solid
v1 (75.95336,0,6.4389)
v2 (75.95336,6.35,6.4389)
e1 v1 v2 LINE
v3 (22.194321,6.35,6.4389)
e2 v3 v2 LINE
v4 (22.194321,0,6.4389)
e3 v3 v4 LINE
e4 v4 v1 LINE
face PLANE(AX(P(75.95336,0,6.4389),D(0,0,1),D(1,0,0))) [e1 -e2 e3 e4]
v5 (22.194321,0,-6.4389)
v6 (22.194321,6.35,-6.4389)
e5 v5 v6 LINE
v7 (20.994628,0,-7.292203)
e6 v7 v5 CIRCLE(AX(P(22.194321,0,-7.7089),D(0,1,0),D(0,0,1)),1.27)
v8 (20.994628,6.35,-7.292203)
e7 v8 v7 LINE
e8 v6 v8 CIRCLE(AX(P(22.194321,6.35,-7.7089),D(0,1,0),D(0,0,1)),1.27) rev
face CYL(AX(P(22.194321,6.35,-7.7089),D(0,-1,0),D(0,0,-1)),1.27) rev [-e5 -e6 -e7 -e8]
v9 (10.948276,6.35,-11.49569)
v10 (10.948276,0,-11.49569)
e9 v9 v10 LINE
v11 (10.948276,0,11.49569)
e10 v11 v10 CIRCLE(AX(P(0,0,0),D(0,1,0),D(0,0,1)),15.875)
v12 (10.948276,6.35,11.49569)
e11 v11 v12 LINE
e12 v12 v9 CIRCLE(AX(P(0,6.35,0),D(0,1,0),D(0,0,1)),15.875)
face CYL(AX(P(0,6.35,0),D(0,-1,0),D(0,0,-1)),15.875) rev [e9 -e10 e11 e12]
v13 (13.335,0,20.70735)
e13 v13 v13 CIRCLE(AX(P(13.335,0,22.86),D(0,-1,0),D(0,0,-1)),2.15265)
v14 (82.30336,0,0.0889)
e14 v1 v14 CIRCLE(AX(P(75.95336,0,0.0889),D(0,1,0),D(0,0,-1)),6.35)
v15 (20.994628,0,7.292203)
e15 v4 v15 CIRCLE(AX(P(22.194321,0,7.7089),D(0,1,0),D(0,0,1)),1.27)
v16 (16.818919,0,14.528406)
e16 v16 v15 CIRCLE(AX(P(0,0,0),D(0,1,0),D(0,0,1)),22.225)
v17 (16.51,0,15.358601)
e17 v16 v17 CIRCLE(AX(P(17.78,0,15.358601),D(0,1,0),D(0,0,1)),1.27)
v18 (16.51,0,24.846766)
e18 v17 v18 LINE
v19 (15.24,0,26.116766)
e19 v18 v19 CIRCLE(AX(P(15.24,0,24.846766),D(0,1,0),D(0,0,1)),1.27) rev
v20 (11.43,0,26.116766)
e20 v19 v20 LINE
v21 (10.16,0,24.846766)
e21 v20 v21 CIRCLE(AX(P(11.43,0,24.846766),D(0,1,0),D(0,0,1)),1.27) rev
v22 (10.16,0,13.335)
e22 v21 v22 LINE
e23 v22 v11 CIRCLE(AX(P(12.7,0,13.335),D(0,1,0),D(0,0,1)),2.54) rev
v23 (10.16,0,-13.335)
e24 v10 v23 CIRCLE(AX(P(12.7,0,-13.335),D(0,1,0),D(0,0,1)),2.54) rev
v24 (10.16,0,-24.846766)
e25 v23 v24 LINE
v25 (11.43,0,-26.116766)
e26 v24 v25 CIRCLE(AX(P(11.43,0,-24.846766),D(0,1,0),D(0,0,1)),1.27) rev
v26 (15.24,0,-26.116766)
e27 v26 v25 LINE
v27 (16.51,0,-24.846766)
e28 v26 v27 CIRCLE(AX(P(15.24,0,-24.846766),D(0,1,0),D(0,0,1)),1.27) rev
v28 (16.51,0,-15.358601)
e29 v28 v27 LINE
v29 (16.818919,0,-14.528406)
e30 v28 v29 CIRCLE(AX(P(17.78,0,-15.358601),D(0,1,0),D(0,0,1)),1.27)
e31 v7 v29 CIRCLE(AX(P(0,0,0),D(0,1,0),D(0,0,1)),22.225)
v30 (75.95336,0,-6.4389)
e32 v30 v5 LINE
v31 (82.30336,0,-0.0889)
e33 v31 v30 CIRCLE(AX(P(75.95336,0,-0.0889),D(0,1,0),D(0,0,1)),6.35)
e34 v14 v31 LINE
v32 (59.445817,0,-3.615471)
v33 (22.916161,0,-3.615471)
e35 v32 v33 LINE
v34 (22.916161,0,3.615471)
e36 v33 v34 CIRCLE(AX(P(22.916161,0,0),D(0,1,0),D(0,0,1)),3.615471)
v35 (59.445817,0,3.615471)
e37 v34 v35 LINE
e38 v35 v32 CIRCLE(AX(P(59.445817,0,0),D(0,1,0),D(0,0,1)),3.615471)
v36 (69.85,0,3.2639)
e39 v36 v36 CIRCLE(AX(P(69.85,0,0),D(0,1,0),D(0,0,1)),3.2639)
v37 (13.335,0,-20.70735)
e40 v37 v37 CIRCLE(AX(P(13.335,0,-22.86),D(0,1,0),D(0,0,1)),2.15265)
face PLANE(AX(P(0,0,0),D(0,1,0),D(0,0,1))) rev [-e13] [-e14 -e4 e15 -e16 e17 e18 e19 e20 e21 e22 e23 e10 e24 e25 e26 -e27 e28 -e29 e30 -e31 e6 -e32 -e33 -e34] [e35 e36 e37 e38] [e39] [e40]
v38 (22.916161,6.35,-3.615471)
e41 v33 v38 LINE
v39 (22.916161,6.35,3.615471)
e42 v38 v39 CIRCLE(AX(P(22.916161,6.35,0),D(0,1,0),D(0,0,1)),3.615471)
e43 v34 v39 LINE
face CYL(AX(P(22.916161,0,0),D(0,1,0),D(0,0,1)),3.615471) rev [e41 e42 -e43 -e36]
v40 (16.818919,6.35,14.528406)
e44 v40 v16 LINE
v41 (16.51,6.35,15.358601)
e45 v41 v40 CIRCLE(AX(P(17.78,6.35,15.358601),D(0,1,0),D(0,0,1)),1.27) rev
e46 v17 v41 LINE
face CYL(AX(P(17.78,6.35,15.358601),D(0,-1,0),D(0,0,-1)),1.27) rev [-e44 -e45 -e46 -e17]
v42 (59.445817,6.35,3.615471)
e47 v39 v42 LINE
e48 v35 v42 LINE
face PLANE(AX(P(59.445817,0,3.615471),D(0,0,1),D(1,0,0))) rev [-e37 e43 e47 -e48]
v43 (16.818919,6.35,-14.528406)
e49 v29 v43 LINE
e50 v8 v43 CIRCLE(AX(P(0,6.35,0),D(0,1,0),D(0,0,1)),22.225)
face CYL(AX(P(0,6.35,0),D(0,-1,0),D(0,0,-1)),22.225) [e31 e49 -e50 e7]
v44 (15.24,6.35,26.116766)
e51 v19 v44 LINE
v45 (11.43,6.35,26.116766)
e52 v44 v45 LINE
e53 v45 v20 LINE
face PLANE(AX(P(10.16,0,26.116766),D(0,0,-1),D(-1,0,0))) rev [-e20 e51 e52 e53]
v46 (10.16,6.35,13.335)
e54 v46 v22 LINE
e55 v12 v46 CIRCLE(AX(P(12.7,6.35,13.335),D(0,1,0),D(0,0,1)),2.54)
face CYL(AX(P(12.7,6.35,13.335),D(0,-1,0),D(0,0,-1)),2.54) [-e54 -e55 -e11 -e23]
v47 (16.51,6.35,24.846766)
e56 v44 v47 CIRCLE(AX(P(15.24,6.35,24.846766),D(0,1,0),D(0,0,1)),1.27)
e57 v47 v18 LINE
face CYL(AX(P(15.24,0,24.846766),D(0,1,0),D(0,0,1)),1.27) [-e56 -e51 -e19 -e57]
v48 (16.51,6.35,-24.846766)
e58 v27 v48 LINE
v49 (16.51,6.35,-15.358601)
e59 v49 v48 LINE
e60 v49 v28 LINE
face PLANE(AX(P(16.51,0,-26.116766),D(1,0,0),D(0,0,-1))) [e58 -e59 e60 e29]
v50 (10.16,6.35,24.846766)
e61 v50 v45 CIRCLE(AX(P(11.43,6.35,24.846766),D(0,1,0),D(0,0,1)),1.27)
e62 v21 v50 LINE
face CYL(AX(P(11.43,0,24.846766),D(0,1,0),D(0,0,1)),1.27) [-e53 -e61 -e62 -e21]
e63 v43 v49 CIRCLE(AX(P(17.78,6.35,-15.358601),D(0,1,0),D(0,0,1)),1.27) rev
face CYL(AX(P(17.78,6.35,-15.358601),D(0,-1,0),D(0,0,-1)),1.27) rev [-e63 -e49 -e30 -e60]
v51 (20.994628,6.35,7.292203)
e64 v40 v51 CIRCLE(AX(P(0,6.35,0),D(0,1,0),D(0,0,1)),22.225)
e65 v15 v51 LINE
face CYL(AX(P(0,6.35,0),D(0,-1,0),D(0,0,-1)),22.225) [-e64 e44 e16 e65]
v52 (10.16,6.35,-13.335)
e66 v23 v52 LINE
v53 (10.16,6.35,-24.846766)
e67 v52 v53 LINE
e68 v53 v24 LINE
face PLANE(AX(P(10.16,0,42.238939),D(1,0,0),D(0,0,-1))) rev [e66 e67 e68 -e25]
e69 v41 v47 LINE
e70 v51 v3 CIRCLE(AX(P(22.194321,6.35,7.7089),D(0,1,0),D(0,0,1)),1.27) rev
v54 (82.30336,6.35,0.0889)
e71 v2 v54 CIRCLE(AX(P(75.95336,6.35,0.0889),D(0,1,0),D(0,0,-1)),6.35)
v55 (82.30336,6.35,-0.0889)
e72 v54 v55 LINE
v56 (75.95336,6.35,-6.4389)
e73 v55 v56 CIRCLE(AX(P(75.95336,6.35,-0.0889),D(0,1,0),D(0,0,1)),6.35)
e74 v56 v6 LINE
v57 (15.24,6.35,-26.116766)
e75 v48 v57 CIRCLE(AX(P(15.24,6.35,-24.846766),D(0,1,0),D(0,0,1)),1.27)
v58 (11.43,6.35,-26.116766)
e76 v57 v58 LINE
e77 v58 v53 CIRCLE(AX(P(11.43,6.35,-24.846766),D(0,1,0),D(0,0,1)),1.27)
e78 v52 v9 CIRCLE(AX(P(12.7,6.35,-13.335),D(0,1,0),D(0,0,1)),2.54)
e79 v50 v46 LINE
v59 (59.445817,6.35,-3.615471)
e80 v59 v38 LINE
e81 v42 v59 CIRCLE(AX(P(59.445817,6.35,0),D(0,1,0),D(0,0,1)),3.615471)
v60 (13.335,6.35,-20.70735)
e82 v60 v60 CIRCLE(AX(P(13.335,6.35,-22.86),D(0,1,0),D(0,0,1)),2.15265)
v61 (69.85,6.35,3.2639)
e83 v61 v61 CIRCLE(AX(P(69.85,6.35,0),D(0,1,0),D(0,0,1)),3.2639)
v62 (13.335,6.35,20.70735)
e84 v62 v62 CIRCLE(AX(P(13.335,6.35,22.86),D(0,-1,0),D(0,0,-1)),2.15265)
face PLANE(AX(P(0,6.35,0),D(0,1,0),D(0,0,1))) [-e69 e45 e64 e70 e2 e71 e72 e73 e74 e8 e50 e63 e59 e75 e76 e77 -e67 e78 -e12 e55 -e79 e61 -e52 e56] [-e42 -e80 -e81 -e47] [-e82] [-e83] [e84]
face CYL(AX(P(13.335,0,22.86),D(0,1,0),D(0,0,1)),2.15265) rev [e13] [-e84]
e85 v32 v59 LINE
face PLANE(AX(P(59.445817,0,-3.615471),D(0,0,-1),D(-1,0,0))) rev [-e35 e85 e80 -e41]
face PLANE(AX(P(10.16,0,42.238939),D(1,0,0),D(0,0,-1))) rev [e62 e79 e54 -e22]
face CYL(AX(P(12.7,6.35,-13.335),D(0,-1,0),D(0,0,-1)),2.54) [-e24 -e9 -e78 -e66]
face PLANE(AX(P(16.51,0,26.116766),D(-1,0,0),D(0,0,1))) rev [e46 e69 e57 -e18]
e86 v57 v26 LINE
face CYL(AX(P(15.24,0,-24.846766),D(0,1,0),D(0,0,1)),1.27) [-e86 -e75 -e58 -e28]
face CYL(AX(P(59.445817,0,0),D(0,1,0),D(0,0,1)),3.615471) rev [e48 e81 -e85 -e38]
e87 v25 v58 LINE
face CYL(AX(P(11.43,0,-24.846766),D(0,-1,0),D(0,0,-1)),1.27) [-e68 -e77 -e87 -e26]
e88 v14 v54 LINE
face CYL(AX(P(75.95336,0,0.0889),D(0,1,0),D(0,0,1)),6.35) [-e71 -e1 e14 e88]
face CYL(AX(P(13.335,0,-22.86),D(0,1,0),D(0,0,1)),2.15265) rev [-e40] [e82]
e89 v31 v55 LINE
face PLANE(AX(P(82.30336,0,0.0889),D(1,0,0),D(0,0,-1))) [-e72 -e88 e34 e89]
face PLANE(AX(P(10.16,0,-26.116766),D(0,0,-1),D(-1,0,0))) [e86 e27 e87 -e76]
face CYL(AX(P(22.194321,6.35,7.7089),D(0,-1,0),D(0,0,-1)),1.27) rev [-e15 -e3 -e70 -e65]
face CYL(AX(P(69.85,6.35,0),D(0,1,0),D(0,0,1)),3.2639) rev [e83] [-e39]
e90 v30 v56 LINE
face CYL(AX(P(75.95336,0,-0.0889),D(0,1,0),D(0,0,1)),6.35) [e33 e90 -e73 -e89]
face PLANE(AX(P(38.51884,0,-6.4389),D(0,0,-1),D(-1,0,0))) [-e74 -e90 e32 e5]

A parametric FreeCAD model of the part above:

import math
import FreeCAD as App
import Part
import Sketcher
from FreeCAD import Vector
Q = App.Units.Quantity


def edges_at(feature, points):
    """Names of the edges that pass closest to the given points."""
    edges = feature.Shape.Edges
    near = lambda p: min(range(len(edges)), key=lambda i: edges[i].distToShape(Part.Vertex(*p))[0])
    return sorted({f"Edge{near(p) + 1}" for p in points})

doc = App.newDocument("Part")
body = doc.addObject("PartDesign::Body", "Body")

sketch1 = body.newObject("Sketcher::SketchObject", "Sketch")
sketch1.AttachmentSupport = (doc.getObject("XZ_Plane"), [""])
sketch1.MapMode = "FlatFace"
sketch1.addGeometry([
    Part.Circle(Vector(0, 0, 0), Vector(0, 0, 1), 22.225),
    Part.Circle(Vector(0, 0, 0), Vector(0, 0, 1), 15.875),
], False)
sketch1.addConstraint([
    Sketcher.Constraint("Coincident", 0, 3, -1, 1),
    Sketcher.Constraint("Coincident", 1, 3, -1, 1),
    Sketcher.Constraint("Diameter", 0, Q("1.75 in")),
    Sketcher.Constraint("Diameter", 1, Q("1.25 in")),
])
pad1 = body.newObject("PartDesign::Pad", "Pad")
pad1.Profile = sketch1
pad1.Length = Q("0.25 in")
pad1.Reversed = True

sketch2 = body.newObject("Sketcher::SketchObject", "Sketch001")
sketch2.AttachmentSupport = (doc.getObject("XZ_Plane"), [""])
sketch2.MapMode = "FlatFace"
sketch2.AttachmentOffset = App.Placement(Vector(0, 0, -0.25 * 25.4), App.Rotation())
sketch2.addGeometry([
    Part.LineSegment(Vector(17.59077, 6.4389, 0), Vector(75.95336, 6.4389, 0)),
    Part.ArcOfCircle(Part.Circle(Vector(75.95336, 0.0889, 0), Vector(0, 0, 1), 6.35), math.radians(0), math.radians(90)),
    Part.LineSegment(Vector(82.30336, 0.0889, 0), Vector(82.30336, -0.0889, 0)),
    Part.ArcOfCircle(Part.Circle(Vector(75.95336, -0.0889, 0), Vector(0, 0, 1), 6.35), math.radians(-90), math.radians(0)),
    Part.LineSegment(Vector(75.95336, -6.4389, 0), Vector(17.59077, -6.4389, 0)),
    Part.LineSegment(Vector(17.59077, -6.4389, 0), Vector(17.59077, 6.4389, 0)),
], False)
sketch2.addConstraint([
    Sketcher.Constraint("Tangent", 0, 2, 1, 2),
    Sketcher.Constraint("Tangent", 1, 1, 2, 1),
    Sketcher.Constraint("Tangent", 2, 2, 3, 2),
    Sketcher.Constraint("Tangent", 3, 1, 4, 1),
    Sketcher.Constraint("Coincident", 4, 2, 5, 1),
    Sketcher.Constraint("Coincident", 5, 2, 0, 1),
    Sketcher.Constraint("Horizontal", 0),
    Sketcher.Constraint("Vertical", 2),
    Sketcher.Constraint("Horizontal", 4),
    Sketcher.Constraint("Vertical", 5),
    Sketcher.Constraint("Equal", 1, 3),
    Sketcher.Constraint("Radius", 1, Q("0.25 in")),
    Sketcher.Constraint("DistanceY", 2, 2, 2, 1, Q("0.007 in")),
    Sketcher.Constraint("DistanceY", -1, 1, 1, 3, Q("0.0035 in")),
    Sketcher.Constraint("DistanceX", 0, 1, 0, 2, Q("58.36259 mm")),
    Sketcher.Constraint("DistanceX", -1, 1, 1, 3, Q("75.95336 mm")),
])
pad2 = body.newObject("PartDesign::Pad", "Pad001")
pad2.Profile = sketch2
pad2.Length = Q("0.25 in")

sketch3 = body.newObject("Sketcher::SketchObject", "Sketch002")
sketch3.AttachmentSupport = (doc.getObject("XZ_Plane"), [""])
sketch3.MapMode = "FlatFace"
sketch3.AttachmentOffset = App.Placement(Vector(0, 0, -0.25 * 25.4), App.Rotation())
sketch3.addGeometry(Part.Circle(Vector(69.85, 0, 0), Vector(0, 0, 1), 3.2639), False)
sketch3.addConstraint([
    Sketcher.Constraint("PointOnObject", 0, 3, -1),
    Sketcher.Constraint("Diameter", 0, Q("0.257 in")),
    Sketcher.Constraint("DistanceX", -1, 1, 0, 3, Q("2.75 in")),
])
doc.recompute()
hole = body.newObject("PartDesign::Hole", "Hole")
hole.Profile = sketch3
hole.ThreadType = "None"
hole.Diameter = Q("0.257 in")
hole.DepthType = "ThroughAll"
hole.Reversed = True

sketch4 = body.newObject("Sketcher::SketchObject", "Sketch003")
sketch4.AttachmentSupport = (doc.getObject("XZ_Plane"), [""])
sketch4.MapMode = "FlatFace"
sketch4.AttachmentOffset = App.Placement(Vector(0, 0, -0.25 * 25.4), App.Rotation())
sketch4.addGeometry([
    Part.LineSegment(Vector(-55.39241, -39.932163, 0), Vector(-55.39241, 42.238939, 0)),
    Part.LineSegment(Vector(-55.39241, 42.238939, 0), Vector(10.16, 42.238939, 0)),
    Part.LineSegment(Vector(10.16, 42.238939, 0), Vector(10.16, -39.932163, 0)),
    Part.LineSegment(Vector(10.16, -39.932163, 0), Vector(-55.39241, -39.932163, 0)),
], False)
sketch4.addConstraint([
    Sketcher.Constraint("Coincident", 0, 2, 1, 1),
    Sketcher.Constraint("Coincident", 1, 2, 2, 1),
    Sketcher.Constraint("Coincident", 2, 2, 3, 1),
    Sketcher.Constraint("Coincident", 3, 2, 0, 1),
    Sketcher.Constraint("Vertical", 0),
    Sketcher.Constraint("Horizontal", 1),
    Sketcher.Constraint("Vertical", 2),
    Sketcher.Constraint("Horizontal", 3),
    Sketcher.Constraint("DistanceX", -1, 1, 1, 2, Q("0.4 in")),
    Sketcher.Constraint("DistanceY", 0, 1, 0, 2, Q("82.171102 mm")),
    Sketcher.Constraint("DistanceX", 1, 1, 1, 2, Q("65.55241 mm")),
    Sketcher.Constraint("DistanceY", -1, 1, 0, 2, Q("42.238939 mm")),
])
pocket1 = body.newObject("PartDesign::Pocket", "Pocket")
pocket1.Profile = sketch4
pocket1.Type = "ThroughAll"
pocket1.Reversed = True
doc.recompute()

fillet = body.newObject("PartDesign::Fillet", "Fillet")
fillet.Base = (pocket1, edges_at(pocket1, [(10.16, 3.175, -12.198), (10.16, 3.175, 12.198)]))
fillet.Radius = Q("0.1 in")

sketch5 = body.newObject("Sketcher::SketchObject", "Sketch004")
sketch5.AttachmentSupport = (doc.getObject("XZ_Plane"), [""])
sketch5.MapMode = "FlatFace"
sketch5.AttachmentOffset = App.Placement(Vector(0, 0, -0.25 * 25.4), App.Rotation())
sketch5.addGeometry([
    Part.LineSegment(Vector(10.16, -26.116766, 0), Vector(10.16, -19.766766, 0)),
    Part.LineSegment(Vector(10.16, -19.766766, 0), Vector(16.51, -14.878526, 0)),
    Part.LineSegment(Vector(16.51, -14.878526, 0), Vector(16.51, -26.116766, 0)),
    Part.LineSegment(Vector(16.51, -26.116766, 0), Vector(10.16, -26.116766, 0)),
    Part.Circle(Vector(13.335, -22.86, 0), Vector(0, 0, 1), 2.15265),
], False)
sketch5.addConstraint([
    Sketcher.Constraint("Coincident", 0, 2, 1, 1),
    Sketcher.Constraint("Coincident", 1, 2, 2, 1),
    Sketcher.Constraint("Coincident", 2, 2, 3, 1),
    Sketcher.Constraint("Coincident", 3, 2, 0, 1),
    Sketcher.Constraint("Vertical", 0),
    Sketcher.Constraint("Vertical", 2),
    Sketcher.Constraint("Horizontal", 3),
    Sketcher.Constraint("Equal", 3, 0),
    Sketcher.Constraint("Diameter", 4, Q("0.1695 in")),
    Sketcher.Constraint("DistanceX", 3, 2, 3, 1, Q("0.25 in")),
    Sketcher.Constraint("DistanceY", 4, 3, -1, 1, Q("0.9 in")),
    Sketcher.Constraint("DistanceX", -1, 1, 0, 2, Q("0.4 in")),
    Sketcher.Constraint("DistanceX", -1, 1, 4, 3, Q("0.525 in")),
    Sketcher.Constraint("DistanceY", 2, 2, 2, 1, Q("11.23824 mm")),
    Sketcher.Constraint("DistanceY", 0, 2, -1, 1, Q("19.766766 mm")),
])
pad3 = body.newObject("PartDesign::Pad", "Pad002")
pad3.Profile = sketch5
pad3.Length = Q("0.25 in")
doc.recompute()

mirrored = body.newObject("PartDesign::Mirrored", "Mirrored")
mirrored.Originals = [pad3]
mirrored.MirrorPlane = (doc.getObject("XY_Plane"), [""])
body.Tip = mirrored
doc.recompute()

fillet2 = body.newObject("PartDesign::Fillet", "Fillet001")
fillet2.Base = (mirrored, edges_at(mirrored, [
    (21.272, 3.175, 6.439),
    (21.272, 3.175, -6.439),
    (16.51, 3.175, 14.879),
    (16.51, 3.175, 26.117),
    (10.16, 3.175, 26.117),
    (16.51, 3.175, -14.879),
    (10.16, 3.175, -26.117),
    (16.51, 3.175, -26.117),
]))
fillet2.Radius = Q("0.05 in")

sketch6 = body.newObject("Sketcher::SketchObject", "Sketch005")
sketch6.AttachmentSupport = (doc.getObject("XZ_Plane"), [""])
sketch6.MapMode = "FlatFace"
sketch6.AttachmentOffset = App.Placement(Vector(0, 0, -0.25 * 25.4), App.Rotation())
sketch6.addGeometry([
    Part.LineSegment(Vector(22.916161, 3.615471, 0), Vector(59.445817, 3.615471, 0)),
    Part.ArcOfCircle(Part.Circle(Vector(59.445817, 0, 0), Vector(0, 0, 1), 3.615471), math.radians(-90), math.radians(90)),
    Part.LineSegment(Vector(59.445817, -3.615471, 0), Vector(22.916161, -3.615471, 0)),
    Part.ArcOfCircle(Part.Circle(Vector(22.916161, 0, 0), Vector(0, 0, 1), 3.615471), math.radians(90), math.radians(270)),
], False)
sketch6.addConstraint([
    Sketcher.Constraint("Tangent", 0, 2, 1, 2),
    Sketcher.Constraint("Tangent", 1, 1, 2, 1),
    Sketcher.Constraint("Tangent", 2, 2, 3, 2),
    Sketcher.Constraint("Tangent", 3, 1, 0, 1),
    Sketcher.Constraint("Horizontal", 0),
    Sketcher.Constraint("Horizontal", 2),
    Sketcher.Constraint("PointOnObject", 1, 3, -1),
    Sketcher.Constraint("Radius", 1, Q("3.615471 mm")),
    Sketcher.Constraint("DistanceX", 0, 1, 0, 2, Q("36.529656 mm")),
    Sketcher.Constraint("DistanceX", -1, 1, 3, 3, Q("22.916161 mm")),
])
pocket2 = body.newObject("PartDesign::Pocket", "Pocket001")
pocket2.Profile = sketch6
pocket2.Type = "ThroughAll"
pocket2.Reversed = True

doc.recompute()
